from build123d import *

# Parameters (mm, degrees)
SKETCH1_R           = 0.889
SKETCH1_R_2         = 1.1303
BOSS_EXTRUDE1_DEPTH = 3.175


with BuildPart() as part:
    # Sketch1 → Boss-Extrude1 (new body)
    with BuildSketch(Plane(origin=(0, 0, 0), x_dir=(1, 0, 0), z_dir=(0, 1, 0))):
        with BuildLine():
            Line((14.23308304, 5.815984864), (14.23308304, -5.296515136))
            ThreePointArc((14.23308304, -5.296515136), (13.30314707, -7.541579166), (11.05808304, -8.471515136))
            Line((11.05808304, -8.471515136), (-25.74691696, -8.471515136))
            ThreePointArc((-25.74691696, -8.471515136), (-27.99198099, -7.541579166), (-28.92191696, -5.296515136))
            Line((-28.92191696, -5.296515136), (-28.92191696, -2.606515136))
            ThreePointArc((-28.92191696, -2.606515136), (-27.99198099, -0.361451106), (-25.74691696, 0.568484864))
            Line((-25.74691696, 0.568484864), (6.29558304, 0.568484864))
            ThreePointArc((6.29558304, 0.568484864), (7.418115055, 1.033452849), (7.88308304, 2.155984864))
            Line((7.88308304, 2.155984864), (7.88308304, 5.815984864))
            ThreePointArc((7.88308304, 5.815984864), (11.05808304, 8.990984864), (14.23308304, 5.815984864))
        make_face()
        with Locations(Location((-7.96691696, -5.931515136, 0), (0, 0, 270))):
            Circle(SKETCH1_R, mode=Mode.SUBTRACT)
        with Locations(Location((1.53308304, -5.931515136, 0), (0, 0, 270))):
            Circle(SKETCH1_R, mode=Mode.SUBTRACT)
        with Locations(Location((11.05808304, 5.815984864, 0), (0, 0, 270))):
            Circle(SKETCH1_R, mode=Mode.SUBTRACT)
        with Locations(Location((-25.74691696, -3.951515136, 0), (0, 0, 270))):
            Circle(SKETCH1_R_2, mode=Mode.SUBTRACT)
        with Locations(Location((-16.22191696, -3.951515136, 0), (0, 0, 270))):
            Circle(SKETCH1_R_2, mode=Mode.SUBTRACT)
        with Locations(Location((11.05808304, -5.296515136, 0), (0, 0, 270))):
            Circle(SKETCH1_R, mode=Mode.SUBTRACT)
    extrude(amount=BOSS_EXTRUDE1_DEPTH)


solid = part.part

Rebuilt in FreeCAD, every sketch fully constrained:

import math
import FreeCAD as App
import Part
import Sketcher
Q = App.Units.Quantity

doc = App.newDocument("Part")
params = doc.addObject("Spreadsheet::Sheet", "Params")
for row, (alias, value) in enumerate([
    ("sketch1_diameter", "0.07 in"),
    ("sketch1_diameter2", "0.089 in"),
    ("sketch1_radius", "0.125 in"),
    ("sketch1_radius2", "0.0625 in"),
    ("sketch1_height", "0.4375 in"),
    ("pad1_length", "0.125 in"),
], start=1):
    params.set(f"A{row}", alias)
    params.set(f"B{row}", "=" + value)
    params.setAlias(f"B{row}", alias)

body = doc.addObject("PartDesign::Body", "Body")

# Sketch on XZ plane
sketch1 = body.newObject("Sketcher::SketchObject", "Sketch")
sketch1.AttachmentSupport = (doc.getObject("XZ_Plane"), [""])
sketch1.MapMode = "FlatFace"
sketch1.addGeometry(Part.LineSegment(App.Vector(14.2, 5.3, 0), App.Vector(14.2, -5.8, 0)), False)
sketch1.addGeometry(Part.ArcOfCircle(Part.Circle(App.Vector(11.1, -5.8, 0), App.Vector(0, 0, 1), 3.2), math.radians(180), math.radians(360)), False)
sketch1.addGeometry(Part.LineSegment(App.Vector(7.9, -5.8, 0), App.Vector(7.9, -2.2, 0)), False)
sketch1.addGeometry(Part.ArcOfCircle(Part.Circle(App.Vector(6.3, -2.2, 0), App.Vector(0, 0, 1), 1.6), math.radians(0), math.radians(90)), False)
sketch1.addGeometry(Part.LineSegment(App.Vector(6.3, -0.6, 0), App.Vector(-25.7, -0.6, 0)), False)
sketch1.addGeometry(Part.ArcOfCircle(Part.Circle(App.Vector(-25.7, 2.6, 0), App.Vector(0, 0, 1), 3.2), math.radians(-180), math.radians(-90)), False)
sketch1.addGeometry(Part.LineSegment(App.Vector(-28.9, 2.6, 0), App.Vector(-28.9, 5.3, 0)), False)
sketch1.addGeometry(Part.ArcOfCircle(Part.Circle(App.Vector(-25.7, 5.3, 0), App.Vector(0, 0, 1), 3.2), math.radians(90), math.radians(180)), False)
sketch1.addGeometry(Part.LineSegment(App.Vector(-25.7, 8.5, 0), App.Vector(11.1, 8.5, 0)), False)
sketch1.addGeometry(Part.ArcOfCircle(Part.Circle(App.Vector(11.1, 5.3, 0), App.Vector(0, 0, 1), 3.2), math.radians(0), math.radians(90)), False)
sketch1.addGeometry(Part.Circle(App.Vector(11.1, 5.3, 0), App.Vector(0, 0, 1), 0.9), False)
sketch1.addGeometry(Part.Circle(App.Vector(1.5, 5.9, 0), App.Vector(0, 0, 1), 0.9), False)
sketch1.addGeometry(Part.Circle(App.Vector(-8, 5.9, 0), App.Vector(0, 0, 1), 0.9), False)
sketch1.addGeometry(Part.Circle(App.Vector(-16.2, 4, 0), App.Vector(0, 0, 1), 1.1), False)
sketch1.addGeometry(Part.Circle(App.Vector(-25.7, 4, 0), App.Vector(0, 0, 1), 1.1), False)
sketch1.addGeometry(Part.Circle(App.Vector(11.1, -5.8, 0), App.Vector(0, 0, 1), 0.9), False)
sketch1.addConstraint(Sketcher.Constraint("Tangent", 0, 2, 1, 2))
sketch1.addConstraint(Sketcher.Constraint("Tangent", 1, 1, 2, 1))
sketch1.addConstraint(Sketcher.Constraint("Tangent", 2, 2, 3, 1))
sketch1.addConstraint(Sketcher.Constraint("Tangent", 3, 2, 4, 1))
sketch1.addConstraint(Sketcher.Constraint("Tangent", 4, 2, 5, 2))
sketch1.addConstraint(Sketcher.Constraint("Tangent", 5, 1, 6, 1))
sketch1.addConstraint(Sketcher.Constraint("Tangent", 6, 2, 7, 2))
sketch1.addConstraint(Sketcher.Constraint("Tangent", 7, 1, 8, 1))
sketch1.addConstraint(Sketcher.Constraint("Tangent", 8, 2, 9, 2))
sketch1.addConstraint(Sketcher.Constraint("Tangent", 9, 1, 0, 1))
sketch1.addConstraint(Sketcher.Constraint("Vertical", 0))
sketch1.addConstraint(Sketcher.Constraint("Vertical", 2))
sketch1.addConstraint(Sketcher.Constraint("Horizontal", 4))
sketch1.addConstraint(Sketcher.Constraint("Vertical", 6))
sketch1.addConstraint(Sketcher.Constraint("Horizontal", 8))
sketch1.addConstraint(Sketcher.Constraint("Coincident", 10, 3, 9, 3))
sketch1.addConstraint(Sketcher.Constraint("Coincident", 15, 3, 1, 3))
sketch1.addConstraint(Sketcher.Constraint("Equal", 1, 5))
sketch1.addConstraint(Sketcher.Constraint("Equal", 5, 7))
sketch1.addConstraint(Sketcher.Constraint("Equal", 7, 9))
sketch1.addConstraint(Sketcher.Constraint("Equal", 10, 11))
sketch1.addConstraint(Sketcher.Constraint("Equal", 11, 12))
sketch1.addConstraint(Sketcher.Constraint("Equal", 13, 14))
sketch1.addConstraint(Sketcher.Constraint("Equal", 12, 15))
sketch1.addConstraint(Sketcher.Constraint("Horizontal", 11, 3, 12, 3))
sketch1.addConstraint(Sketcher.Constraint("Horizontal", 13, 3, 14, 3))
sketch1.addConstraint(Sketcher.Constraint("Vertical", 7, 3, 14, 3))
sketch1.addConstraint(Sketcher.Constraint("Diameter", 10, Q("0.07 in")))
sketch1.addConstraint(Sketcher.Constraint("Diameter", 13, Q("0.089 in")))
sketch1.addConstraint(Sketcher.Constraint("Radius", 1, Q("0.125 in")))
sketch1.addConstraint(Sketcher.Constraint("Radius", 3, Q("0.0625 in")))
sketch1.addConstraint(Sketcher.Constraint("DistanceX", 7, 3, 12, 3, Q("0.7 in")))
sketch1.addConstraint(Sketcher.Constraint("DistanceX", 5, 1, 13, 3, Q("0.5 in")))
sketch1.addConstraint(Sketcher.Constraint("DistanceY", 11, 3, 8, 2, Q("0.1 in")))
sketch1.addConstraint(Sketcher.Constraint("DistanceY", 0, 2, 0, 1, Q("0.4375 in")))
sketch1.addConstraint(Sketcher.Constraint("DistanceX", 11, 3, 3, 3, Q("0.1875 in")))
sketch1.addConstraint(Sketcher.Constraint("DistanceX", 4, 2, 4, 1, 32.0425))
sketch1.addConstraint(Sketcher.Constraint("DistanceY", 2, 1, 2, 2, 3.66))
sketch1.addConstraint(Sketcher.Constraint("DistanceY", 13, 3, 12, 3, 1.98))
sketch1.addConstraint(Sketcher.Constraint("DistanceX", -1, 1, 1, 3, 11.058083))
sketch1.addConstraint(Sketcher.Constraint("DistanceY", 1, 3, -1, 1, 5.815985))
sketch1.setExpression("Constraints[27]", "Params.sketch1_diameter")
sketch1.setExpression("Constraints[28]", "Params.sketch1_diameter2")
sketch1.setExpression("Constraints[29]", "Params.sketch1_radius")
sketch1.setExpression("Constraints[30]", "Params.sketch1_radius2")
sketch1.setExpression("Constraints[34]", "Params.sketch1_height")
pad1 = body.newObject("PartDesign::Pad", "Pad")
pad1.Profile = sketch1
pad1.setExpression("Length", "Params.pad1_length")
pad1.Reversed = True

doc.recompute()
